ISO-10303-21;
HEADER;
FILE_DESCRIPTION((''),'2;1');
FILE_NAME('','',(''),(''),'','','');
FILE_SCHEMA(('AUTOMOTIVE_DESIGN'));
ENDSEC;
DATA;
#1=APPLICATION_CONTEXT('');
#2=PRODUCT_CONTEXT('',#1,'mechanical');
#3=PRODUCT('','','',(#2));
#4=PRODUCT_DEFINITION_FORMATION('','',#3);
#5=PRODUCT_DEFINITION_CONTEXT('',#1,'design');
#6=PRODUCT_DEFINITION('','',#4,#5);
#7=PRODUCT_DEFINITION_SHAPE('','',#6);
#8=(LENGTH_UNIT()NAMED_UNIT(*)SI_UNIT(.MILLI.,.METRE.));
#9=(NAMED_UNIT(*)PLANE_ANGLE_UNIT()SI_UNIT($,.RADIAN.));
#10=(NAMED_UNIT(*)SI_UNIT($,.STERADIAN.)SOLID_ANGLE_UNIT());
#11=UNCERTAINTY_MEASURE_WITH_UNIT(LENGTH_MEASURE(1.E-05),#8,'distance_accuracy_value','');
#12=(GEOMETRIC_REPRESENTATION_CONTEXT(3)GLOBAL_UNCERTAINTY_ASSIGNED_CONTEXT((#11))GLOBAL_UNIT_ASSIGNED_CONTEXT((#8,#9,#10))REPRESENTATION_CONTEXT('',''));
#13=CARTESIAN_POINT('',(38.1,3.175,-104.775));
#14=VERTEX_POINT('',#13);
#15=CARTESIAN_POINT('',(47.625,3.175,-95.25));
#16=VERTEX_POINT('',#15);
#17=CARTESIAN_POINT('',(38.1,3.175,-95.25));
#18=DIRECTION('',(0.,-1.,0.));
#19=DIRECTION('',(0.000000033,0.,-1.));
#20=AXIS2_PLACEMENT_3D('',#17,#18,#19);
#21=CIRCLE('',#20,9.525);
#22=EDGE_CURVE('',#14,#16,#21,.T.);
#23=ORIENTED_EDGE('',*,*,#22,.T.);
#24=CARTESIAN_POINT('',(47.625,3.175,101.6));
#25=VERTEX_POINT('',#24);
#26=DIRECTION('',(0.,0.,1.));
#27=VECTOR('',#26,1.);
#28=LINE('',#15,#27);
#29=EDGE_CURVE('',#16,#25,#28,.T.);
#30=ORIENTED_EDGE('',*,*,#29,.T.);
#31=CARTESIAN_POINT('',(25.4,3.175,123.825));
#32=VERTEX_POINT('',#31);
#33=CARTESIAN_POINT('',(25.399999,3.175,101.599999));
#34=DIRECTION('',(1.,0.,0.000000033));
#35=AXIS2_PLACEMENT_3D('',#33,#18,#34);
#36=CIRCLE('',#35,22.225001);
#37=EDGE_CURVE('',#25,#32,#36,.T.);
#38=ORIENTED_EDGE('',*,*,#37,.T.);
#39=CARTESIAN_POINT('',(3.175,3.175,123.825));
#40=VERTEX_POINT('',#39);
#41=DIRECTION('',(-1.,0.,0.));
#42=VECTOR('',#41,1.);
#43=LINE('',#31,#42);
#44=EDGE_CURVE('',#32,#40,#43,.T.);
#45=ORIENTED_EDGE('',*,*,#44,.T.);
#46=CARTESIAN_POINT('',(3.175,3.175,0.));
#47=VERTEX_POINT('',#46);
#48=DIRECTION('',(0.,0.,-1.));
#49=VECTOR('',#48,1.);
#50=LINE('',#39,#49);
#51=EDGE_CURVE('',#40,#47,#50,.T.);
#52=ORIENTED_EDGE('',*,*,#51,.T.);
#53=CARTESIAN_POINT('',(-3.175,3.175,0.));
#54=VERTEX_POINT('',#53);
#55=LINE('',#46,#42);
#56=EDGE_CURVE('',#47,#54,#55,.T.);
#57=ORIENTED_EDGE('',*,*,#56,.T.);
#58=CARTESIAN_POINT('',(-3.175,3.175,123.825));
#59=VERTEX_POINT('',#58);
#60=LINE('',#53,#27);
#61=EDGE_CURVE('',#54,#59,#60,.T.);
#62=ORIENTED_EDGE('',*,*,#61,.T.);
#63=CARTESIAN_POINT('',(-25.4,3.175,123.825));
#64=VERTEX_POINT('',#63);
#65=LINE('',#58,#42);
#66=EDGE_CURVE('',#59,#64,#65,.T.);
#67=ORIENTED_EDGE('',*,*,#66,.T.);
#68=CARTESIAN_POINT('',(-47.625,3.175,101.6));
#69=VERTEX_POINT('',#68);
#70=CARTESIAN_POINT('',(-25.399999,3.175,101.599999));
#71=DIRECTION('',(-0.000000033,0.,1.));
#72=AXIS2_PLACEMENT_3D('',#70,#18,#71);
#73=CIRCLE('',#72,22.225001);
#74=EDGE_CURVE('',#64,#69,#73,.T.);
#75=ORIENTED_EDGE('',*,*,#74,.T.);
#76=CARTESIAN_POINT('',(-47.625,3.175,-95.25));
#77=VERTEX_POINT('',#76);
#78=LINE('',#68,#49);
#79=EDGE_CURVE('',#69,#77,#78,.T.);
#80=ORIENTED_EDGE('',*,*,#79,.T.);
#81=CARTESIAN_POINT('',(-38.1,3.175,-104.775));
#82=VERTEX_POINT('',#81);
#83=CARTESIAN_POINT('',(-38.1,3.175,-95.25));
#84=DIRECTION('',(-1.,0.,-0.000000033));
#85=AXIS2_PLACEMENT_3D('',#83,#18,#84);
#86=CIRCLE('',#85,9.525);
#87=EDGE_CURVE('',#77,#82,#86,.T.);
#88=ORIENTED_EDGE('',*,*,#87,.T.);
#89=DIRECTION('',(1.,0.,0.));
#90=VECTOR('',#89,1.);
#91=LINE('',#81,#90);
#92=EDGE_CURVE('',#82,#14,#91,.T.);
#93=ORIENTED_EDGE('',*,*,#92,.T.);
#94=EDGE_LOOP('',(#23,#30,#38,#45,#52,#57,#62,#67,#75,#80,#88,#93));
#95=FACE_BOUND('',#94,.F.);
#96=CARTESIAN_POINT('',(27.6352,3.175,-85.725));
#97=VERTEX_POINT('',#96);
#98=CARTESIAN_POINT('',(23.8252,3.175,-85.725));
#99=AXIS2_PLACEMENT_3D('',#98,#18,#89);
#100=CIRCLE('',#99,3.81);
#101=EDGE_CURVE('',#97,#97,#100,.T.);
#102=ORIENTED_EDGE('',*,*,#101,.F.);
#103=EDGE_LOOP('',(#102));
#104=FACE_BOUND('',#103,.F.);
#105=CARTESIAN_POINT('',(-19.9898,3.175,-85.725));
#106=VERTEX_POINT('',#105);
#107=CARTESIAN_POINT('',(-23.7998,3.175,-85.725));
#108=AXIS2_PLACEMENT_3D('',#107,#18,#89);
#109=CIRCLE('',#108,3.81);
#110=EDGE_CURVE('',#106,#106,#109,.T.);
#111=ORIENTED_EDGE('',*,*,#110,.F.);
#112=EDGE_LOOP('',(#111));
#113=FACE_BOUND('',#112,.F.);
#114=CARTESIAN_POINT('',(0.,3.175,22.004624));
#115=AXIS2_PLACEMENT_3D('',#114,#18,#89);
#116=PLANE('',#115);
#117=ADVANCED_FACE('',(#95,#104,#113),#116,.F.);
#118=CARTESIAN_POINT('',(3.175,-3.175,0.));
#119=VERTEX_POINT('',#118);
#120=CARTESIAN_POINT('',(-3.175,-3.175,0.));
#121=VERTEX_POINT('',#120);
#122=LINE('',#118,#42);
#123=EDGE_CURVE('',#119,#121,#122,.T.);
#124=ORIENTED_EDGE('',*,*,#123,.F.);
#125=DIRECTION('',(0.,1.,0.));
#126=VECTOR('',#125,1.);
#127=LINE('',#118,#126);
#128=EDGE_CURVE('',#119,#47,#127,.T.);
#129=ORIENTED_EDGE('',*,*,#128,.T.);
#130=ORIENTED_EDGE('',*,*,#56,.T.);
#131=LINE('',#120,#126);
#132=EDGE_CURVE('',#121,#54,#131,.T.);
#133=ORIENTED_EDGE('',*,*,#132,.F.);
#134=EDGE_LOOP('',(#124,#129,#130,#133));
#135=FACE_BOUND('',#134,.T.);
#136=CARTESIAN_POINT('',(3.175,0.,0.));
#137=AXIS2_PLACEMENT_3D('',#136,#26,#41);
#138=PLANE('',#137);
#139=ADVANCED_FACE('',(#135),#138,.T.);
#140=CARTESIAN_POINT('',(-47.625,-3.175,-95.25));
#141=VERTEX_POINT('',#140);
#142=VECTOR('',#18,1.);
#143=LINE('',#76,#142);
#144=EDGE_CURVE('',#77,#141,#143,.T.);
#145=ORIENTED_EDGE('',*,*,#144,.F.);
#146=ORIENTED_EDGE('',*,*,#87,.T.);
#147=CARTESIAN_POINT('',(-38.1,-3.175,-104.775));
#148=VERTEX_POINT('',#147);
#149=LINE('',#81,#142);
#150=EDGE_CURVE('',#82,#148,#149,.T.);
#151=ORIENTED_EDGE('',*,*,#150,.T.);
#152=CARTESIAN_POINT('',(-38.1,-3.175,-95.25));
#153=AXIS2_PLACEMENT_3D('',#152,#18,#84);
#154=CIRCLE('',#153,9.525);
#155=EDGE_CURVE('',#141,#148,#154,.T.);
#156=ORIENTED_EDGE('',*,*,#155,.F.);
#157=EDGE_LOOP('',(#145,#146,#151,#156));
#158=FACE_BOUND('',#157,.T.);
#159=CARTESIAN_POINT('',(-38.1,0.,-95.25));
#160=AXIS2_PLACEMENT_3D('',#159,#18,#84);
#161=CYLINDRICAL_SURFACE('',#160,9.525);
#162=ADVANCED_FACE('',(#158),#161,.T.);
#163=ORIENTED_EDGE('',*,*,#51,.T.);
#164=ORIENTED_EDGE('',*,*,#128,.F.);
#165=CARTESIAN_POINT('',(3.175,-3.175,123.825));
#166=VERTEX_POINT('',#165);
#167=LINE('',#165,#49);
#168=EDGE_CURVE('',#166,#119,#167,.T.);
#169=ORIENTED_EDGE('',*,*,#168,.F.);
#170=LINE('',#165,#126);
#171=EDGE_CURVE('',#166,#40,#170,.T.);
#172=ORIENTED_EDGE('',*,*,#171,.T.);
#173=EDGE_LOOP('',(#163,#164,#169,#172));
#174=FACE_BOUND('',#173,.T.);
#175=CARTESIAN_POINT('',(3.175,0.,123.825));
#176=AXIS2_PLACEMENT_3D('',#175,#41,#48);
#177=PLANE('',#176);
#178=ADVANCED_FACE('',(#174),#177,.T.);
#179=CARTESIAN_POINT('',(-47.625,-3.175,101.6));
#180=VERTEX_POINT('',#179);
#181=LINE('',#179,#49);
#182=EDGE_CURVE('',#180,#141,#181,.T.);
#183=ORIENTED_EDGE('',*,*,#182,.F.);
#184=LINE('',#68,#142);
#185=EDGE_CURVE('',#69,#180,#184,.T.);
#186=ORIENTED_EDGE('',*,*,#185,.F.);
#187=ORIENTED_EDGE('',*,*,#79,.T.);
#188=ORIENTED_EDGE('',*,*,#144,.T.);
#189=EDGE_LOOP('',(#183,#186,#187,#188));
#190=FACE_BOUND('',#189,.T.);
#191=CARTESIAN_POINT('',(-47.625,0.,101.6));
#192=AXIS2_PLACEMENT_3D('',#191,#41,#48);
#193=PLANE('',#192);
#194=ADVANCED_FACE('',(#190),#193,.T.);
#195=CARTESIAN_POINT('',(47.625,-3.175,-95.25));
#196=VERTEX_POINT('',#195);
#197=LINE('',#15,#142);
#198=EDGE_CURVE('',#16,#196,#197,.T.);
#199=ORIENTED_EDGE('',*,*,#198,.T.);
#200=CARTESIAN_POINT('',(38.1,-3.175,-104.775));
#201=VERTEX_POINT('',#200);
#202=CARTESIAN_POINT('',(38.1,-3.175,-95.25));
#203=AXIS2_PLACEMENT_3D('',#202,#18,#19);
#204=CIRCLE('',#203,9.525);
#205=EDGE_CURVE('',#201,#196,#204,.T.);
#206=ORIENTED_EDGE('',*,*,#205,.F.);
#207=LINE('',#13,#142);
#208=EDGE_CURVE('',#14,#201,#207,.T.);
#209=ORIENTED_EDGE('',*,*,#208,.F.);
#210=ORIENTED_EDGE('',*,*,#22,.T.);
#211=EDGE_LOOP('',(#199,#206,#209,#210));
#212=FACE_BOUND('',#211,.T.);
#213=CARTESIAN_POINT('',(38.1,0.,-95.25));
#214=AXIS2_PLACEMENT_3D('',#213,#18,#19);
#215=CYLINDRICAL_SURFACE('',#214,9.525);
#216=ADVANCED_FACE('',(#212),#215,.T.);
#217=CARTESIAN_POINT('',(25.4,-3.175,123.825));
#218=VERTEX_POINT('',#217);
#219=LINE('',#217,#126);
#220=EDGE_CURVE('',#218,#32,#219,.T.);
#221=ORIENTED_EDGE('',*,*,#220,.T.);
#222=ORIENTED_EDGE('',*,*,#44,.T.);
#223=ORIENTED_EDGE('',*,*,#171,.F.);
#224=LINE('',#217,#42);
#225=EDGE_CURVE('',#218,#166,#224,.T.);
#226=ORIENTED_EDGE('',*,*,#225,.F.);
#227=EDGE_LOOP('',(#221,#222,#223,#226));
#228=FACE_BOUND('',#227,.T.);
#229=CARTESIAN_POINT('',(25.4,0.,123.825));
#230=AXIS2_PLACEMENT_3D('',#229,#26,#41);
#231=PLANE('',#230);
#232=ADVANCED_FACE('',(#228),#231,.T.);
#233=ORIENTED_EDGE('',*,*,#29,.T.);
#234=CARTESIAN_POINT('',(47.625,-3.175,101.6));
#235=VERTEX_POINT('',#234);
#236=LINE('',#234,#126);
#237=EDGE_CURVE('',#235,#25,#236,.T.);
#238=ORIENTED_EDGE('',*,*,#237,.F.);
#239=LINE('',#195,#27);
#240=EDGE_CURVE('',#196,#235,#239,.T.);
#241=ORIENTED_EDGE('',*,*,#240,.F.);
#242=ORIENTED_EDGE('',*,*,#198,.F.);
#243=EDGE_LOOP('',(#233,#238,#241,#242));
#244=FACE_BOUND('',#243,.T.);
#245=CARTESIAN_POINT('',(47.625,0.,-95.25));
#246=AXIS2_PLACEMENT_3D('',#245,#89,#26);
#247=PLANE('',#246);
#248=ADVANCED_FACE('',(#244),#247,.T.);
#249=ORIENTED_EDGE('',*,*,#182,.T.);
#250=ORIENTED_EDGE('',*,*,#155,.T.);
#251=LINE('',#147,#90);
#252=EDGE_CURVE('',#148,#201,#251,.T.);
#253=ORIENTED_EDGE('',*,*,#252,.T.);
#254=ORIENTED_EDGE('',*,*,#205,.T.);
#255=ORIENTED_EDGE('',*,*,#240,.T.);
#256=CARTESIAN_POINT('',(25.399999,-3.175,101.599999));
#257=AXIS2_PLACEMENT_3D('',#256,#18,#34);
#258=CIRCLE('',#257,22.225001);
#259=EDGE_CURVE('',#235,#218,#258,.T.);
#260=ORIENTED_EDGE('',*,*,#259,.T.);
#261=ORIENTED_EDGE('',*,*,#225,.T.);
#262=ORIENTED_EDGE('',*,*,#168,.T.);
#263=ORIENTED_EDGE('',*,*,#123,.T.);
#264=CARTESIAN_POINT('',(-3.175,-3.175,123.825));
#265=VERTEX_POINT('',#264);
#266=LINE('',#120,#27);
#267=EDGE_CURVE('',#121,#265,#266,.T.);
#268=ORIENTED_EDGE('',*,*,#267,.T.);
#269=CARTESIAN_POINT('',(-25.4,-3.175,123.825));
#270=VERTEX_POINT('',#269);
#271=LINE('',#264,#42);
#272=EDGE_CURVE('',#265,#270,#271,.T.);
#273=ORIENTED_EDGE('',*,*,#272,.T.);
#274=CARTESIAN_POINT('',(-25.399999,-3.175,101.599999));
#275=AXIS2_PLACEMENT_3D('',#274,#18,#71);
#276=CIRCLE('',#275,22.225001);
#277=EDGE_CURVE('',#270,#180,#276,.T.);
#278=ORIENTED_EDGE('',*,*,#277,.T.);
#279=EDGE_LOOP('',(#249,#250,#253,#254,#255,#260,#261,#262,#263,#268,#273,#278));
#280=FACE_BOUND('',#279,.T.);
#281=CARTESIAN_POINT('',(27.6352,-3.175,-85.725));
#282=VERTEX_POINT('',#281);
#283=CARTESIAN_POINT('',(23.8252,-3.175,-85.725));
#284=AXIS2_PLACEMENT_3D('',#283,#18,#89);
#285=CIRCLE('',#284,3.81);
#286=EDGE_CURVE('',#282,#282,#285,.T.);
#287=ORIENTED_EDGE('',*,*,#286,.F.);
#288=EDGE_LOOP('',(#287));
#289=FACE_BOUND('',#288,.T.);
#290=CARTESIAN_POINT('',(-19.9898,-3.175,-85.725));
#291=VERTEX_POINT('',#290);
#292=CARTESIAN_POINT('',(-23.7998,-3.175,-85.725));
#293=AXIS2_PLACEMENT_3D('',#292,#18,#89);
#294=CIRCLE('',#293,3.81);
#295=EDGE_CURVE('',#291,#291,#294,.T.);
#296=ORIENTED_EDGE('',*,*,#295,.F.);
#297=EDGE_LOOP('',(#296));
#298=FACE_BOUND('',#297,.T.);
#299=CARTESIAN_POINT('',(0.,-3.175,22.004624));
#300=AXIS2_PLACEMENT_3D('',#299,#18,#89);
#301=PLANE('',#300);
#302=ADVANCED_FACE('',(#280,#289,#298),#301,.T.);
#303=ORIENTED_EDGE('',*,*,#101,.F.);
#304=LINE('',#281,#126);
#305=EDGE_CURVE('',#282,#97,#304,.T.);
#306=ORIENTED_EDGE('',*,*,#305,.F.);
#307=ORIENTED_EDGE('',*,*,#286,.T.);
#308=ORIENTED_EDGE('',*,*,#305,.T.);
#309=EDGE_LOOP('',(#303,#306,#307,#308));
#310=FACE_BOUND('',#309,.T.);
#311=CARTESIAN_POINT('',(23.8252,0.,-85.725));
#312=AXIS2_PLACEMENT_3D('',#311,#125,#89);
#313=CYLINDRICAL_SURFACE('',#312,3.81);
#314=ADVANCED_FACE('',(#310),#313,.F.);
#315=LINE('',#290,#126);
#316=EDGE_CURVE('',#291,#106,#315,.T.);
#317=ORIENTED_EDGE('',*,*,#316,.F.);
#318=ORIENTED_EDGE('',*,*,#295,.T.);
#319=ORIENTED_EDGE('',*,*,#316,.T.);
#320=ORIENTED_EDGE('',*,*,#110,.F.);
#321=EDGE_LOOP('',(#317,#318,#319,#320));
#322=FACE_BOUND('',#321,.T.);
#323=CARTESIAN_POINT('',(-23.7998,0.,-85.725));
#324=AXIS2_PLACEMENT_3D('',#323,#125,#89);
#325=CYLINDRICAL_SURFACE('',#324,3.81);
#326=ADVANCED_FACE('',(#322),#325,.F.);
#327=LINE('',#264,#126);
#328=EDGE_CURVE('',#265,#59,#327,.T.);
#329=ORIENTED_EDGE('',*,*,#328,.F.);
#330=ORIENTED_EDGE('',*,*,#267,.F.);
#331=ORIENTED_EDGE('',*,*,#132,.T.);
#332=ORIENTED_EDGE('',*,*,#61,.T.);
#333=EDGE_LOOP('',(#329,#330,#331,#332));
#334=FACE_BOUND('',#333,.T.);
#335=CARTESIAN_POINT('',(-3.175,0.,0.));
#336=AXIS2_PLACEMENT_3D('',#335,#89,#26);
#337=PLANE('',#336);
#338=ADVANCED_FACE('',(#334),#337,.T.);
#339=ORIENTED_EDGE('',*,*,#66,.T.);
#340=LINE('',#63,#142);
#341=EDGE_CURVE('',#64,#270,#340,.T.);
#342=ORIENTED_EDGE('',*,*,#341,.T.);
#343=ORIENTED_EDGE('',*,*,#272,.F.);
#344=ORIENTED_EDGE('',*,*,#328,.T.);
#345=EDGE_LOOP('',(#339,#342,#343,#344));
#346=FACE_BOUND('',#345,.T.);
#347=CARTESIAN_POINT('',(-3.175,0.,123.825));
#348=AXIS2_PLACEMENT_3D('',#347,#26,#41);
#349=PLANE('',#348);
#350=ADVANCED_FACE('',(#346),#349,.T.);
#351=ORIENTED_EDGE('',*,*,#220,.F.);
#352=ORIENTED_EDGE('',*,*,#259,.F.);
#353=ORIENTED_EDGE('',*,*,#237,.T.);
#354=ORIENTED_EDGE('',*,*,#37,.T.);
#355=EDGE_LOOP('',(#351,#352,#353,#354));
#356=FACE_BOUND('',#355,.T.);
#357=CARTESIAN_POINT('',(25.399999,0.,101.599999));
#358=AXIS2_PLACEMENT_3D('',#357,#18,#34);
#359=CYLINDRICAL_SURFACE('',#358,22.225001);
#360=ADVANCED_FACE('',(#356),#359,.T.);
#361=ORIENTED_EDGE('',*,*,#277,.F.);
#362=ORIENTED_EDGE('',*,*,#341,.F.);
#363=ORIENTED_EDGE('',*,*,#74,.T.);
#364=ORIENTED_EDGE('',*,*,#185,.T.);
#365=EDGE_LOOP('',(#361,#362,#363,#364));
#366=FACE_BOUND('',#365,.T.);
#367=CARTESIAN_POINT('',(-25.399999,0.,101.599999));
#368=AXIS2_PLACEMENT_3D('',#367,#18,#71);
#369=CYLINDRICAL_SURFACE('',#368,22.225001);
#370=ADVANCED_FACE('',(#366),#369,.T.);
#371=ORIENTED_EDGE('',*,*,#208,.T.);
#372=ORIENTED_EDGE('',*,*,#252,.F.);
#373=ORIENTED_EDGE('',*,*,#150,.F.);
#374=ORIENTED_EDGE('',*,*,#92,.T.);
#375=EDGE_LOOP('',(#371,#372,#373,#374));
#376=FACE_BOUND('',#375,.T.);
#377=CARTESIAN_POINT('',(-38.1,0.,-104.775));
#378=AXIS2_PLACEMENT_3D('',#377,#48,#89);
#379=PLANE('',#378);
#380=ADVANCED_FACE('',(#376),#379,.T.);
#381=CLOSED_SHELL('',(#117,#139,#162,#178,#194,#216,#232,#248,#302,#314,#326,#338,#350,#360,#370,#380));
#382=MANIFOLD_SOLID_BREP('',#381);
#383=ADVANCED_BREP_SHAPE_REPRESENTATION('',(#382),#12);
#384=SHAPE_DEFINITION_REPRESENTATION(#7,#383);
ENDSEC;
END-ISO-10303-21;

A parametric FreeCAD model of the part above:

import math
import FreeCAD as App
import Part
import Sketcher
Q = App.Units.Quantity

doc = App.newDocument("Part")
body = doc.addObject("PartDesign::Body", "Body")

sketch1 = doc.addObject("Sketcher::SketchObject", "Sketch")
body.addObject(sketch1)
sketch1.AttachmentSupport = (doc.XZ_Plane, [""])
sketch1.MapMode = "FlatFace"
sketch1.addGeometry([
    Part.LineSegment(App.Vector(-3.2, 123.8, 0), App.Vector(-25.4, 123.8, 0)),
    Part.ArcOfCircle(Part.Circle(App.Vector(-25.4, 101.6, 0), App.Vector(0, 0, 1), 22.2), math.radians(90), math.radians(180)),
    Part.LineSegment(App.Vector(-47.6, 101.6, 0), App.Vector(-47.6, -95.2, 0)),
    Part.ArcOfCircle(Part.Circle(App.Vector(-38.1, -95.2, 0), App.Vector(0, 0, 1), 9.5), math.radians(-180), math.radians(-90)),
    Part.LineSegment(App.Vector(-38.1, -104.8, 0), App.Vector(38.1, -104.8, 0)),
    Part.ArcOfCircle(Part.Circle(App.Vector(38.1, -95.2, 0), App.Vector(0, 0, 1), 9.5), math.radians(-90), math.radians(0)),
    Part.LineSegment(App.Vector(47.6, -95.2, 0), App.Vector(47.6, 101.6, 0)),
    Part.ArcOfCircle(Part.Circle(App.Vector(25.4, 101.6, 0), App.Vector(0, 0, 1), 22.2), math.radians(0), math.radians(90)),
    Part.LineSegment(App.Vector(25.4, 123.8, 0), App.Vector(3.2, 123.8, 0)),
    Part.LineSegment(App.Vector(3.2, 123.8, 0), App.Vector(3.2, 0, 0)),
    Part.LineSegment(App.Vector(3.2, 0, 0), App.Vector(-3.2, 0, 0)),
    Part.LineSegment(App.Vector(-3.2, 0, 0), App.Vector(-3.2, 123.8, 0)),
    Part.Circle(App.Vector(-23.8, -85.7, 0), App.Vector(0, 0, 1), 3.8),
    Part.Circle(App.Vector(23.8, -85.7, 0), App.Vector(0, 0, 1), 3.8),
], False)
sketch1.addConstraint([
    Sketcher.Constraint("Tangent", 0, 2, 1, 1),
    Sketcher.Constraint("Tangent", 1, 2, 2, 1),
    Sketcher.Constraint("Tangent", 2, 2, 3, 1),
    Sketcher.Constraint("Tangent", 3, 2, 4, 1),
    Sketcher.Constraint("Tangent", 4, 2, 5, 1),
    Sketcher.Constraint("Tangent", 5, 2, 6, 1),
    Sketcher.Constraint("Tangent", 6, 2, 7, 1),
    Sketcher.Constraint("Tangent", 7, 2, 8, 1),
    Sketcher.Constraint("Coincident", 8, 2, 9, 1),
    Sketcher.Constraint("Coincident", 9, 2, 10, 1),
    Sketcher.Constraint("Coincident", 10, 2, 11, 1),
    Sketcher.Constraint("Coincident", 11, 2, 0, 1),
    Sketcher.Constraint("Horizontal", 0),
    Sketcher.Constraint("Vertical", 2),
    Sketcher.Constraint("Horizontal", 4),
    Sketcher.Constraint("Vertical", 6),
    Sketcher.Constraint("Horizontal", 8),
    Sketcher.Constraint("Vertical", 9),
    Sketcher.Constraint("Horizontal", 10),
    Sketcher.Constraint("Vertical", 11),
    Sketcher.Constraint("Equal", 3, 5),
    Sketcher.Constraint("Equal", 1, 7),
    Sketcher.Constraint("Equal", 12, 13),
    Sketcher.Constraint("Symmetric", 9, 2, 10, 2, -1, 1),
    Sketcher.Constraint("Symmetric", 1, 3, 7, 3, -2),
    Sketcher.Constraint("Horizontal", 12, 3, 13, 3),
    Sketcher.Constraint("Diameter", 12, Q("0.3 in")),
    Sketcher.Constraint("DistanceX", 4, 1, 4, 2, Q("3 in")),
    Sketcher.Constraint("DistanceX", 1, 3, -1, 1, Q("1 in")),
    Sketcher.Constraint("DistanceY", -1, 1, 1, 3, Q("4 in")),
    Sketcher.Constraint("Radius", 1, Q("0.875 in")),
    Sketcher.Constraint("DistanceX", 10, 2, 10, 1, Q("0.25 in")),
    Sketcher.Constraint("DistanceY", 2, 2, 2, 1, Q("7.75 in")),
    Sketcher.Constraint("DistanceY", 12, 3, 0, 2, Q("8.25 in")),
    Sketcher.Constraint("DistanceX", 12, 3, -1, 1, Q("0.937 in")),
    Sketcher.Constraint("DistanceX", -1, 1, 13, 3, Q("0.938 in")),
])
pad1 = doc.addObject("PartDesign::Pad", "Pad")
body.addObject(pad1)
pad1.Profile = sketch1
pad1.Length = Q("0.25 in")
pad1.Midplane = True

doc.recompute()
